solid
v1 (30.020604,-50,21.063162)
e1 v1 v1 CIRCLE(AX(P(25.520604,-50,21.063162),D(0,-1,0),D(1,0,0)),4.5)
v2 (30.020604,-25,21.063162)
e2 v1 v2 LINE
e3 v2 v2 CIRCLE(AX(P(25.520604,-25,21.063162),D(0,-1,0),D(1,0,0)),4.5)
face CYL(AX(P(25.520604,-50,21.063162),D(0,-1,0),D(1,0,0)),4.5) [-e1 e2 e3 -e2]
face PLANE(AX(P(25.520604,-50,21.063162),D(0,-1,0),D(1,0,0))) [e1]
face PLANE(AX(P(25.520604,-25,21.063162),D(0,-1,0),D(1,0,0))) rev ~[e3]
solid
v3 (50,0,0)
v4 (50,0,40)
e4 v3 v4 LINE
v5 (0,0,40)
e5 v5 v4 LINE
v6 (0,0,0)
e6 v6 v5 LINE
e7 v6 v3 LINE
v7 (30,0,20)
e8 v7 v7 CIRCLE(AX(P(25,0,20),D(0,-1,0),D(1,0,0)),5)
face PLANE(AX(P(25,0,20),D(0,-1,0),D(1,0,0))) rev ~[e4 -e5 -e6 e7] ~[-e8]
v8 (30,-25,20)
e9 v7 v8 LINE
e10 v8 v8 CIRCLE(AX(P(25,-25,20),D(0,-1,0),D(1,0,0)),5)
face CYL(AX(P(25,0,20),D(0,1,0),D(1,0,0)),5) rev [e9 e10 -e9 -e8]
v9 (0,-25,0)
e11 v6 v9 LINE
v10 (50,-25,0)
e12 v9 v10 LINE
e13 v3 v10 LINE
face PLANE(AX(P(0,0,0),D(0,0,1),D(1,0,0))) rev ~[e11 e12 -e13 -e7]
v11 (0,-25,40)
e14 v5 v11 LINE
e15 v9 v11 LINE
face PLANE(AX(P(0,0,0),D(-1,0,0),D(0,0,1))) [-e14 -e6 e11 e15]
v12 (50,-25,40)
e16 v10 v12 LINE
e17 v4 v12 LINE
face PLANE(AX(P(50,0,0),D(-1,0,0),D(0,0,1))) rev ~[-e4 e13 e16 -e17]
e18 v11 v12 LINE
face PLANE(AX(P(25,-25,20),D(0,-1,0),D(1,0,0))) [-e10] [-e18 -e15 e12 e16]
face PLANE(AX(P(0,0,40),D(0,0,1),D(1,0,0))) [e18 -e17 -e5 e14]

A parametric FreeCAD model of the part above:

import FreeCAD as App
import Part
import Sketcher

V = App.Vector


def add_polygon(sketch, points):
    """Adds a closed chain of lines whose ends are joined by coincident constraints."""
    first, n = sketch.GeometryCount, len(points)
    for a, b in zip(points, points[1:] + points[:1]):
        sketch.addGeometry(Part.LineSegment(App.Vector(*a, 0), App.Vector(*b, 0)), False)
    for i in range(n):
        sketch.addConstraint(Sketcher.Constraint("Coincident", first + i, 2, first + (i + 1) % n, 1))

doc = App.newDocument("Part")
params = doc.addObject("Spreadsheet::Sheet", "Params")
for row, (alias, value) in enumerate([
    ("sketch1_diameter", "10 mm"),
    ("sketch1_width", "50 mm"),
    ("sketch1_height", "40 mm"),
    ("pad1_length", "25 mm"),
    ("sketch2_diameter", "9 mm"),
    ("pad2_length", "25 mm"),
], start=1):
    params.set(f"A{row}", alias)
    params.set(f"B{row}", "=" + value)
    params.setAlias(f"B{row}", alias)

body = doc.addObject("PartDesign::Body", "Body")

# Sketch on XZ plane
sketch1 = body.newObject("Sketcher::SketchObject", "Sketch")
sketch1.AttachmentSupport = (doc.getObject("XZ_Plane"), [""])
sketch1.MapMode = "FlatFace"
add_polygon(sketch1, [(0, 40), (0, 0), (50, 0), (50, 40)])  # lines 0-3
sketch1.addGeometry(Part.Circle(V(25, 20, 0), V(0, 0, 1), 5), False)  # 4
sketch1.addConstraint(Sketcher.Constraint("Vertical", 0))
sketch1.addConstraint(Sketcher.Constraint("Horizontal", 1))
sketch1.addConstraint(Sketcher.Constraint("Vertical", 2))
sketch1.addConstraint(Sketcher.Constraint("Horizontal", 3))
sketch1.addConstraint(Sketcher.Constraint("Coincident", 0, 2, -1, 1))
sketch1.addConstraint(Sketcher.Constraint("Diameter", 4, 10.0))
sketch1.addConstraint(Sketcher.Constraint("DistanceX", 1, 1, 1, 2, 50.0))
sketch1.addConstraint(Sketcher.Constraint("DistanceY", 0, 2, 0, 1, 40.0))
sketch1.addConstraint(Sketcher.Constraint("DistanceX", -1, 1, 4, 3, 25.0))
sketch1.addConstraint(Sketcher.Constraint("DistanceY", -1, 1, 4, 3, 20.0))
sketch1.setExpression("Constraints[9]", "Params.sketch1_diameter")
sketch1.setExpression("Constraints[10]", "Params.sketch1_width")
sketch1.setExpression("Constraints[11]", "Params.sketch1_height")
pad1 = body.newObject("PartDesign::Pad", "Pad")
pad1.Profile = sketch1
pad1.setExpression("Length", "Params.pad1_length")
body2 = doc.addObject("PartDesign::Body", "Body001")

# Sketch on XZ plane
sketch2 = body2.newObject("Sketcher::SketchObject", "Sketch001")
sketch2.AttachmentSupport = (doc.getObject("XZ_Plane001"), [""])
sketch2.MapMode = "FlatFace"
sketch2.AttachmentOffset = App.Placement(V(0, 0, 50), App.Rotation())
sketch2.addGeometry(Part.Circle(V(25.5, 21.1, 0), V(0, 0, 1), 4.5), False)
sketch2.addConstraint(Sketcher.Constraint("Diameter", 0, 9.0))
sketch2.addConstraint(Sketcher.Constraint("DistanceX", -1, 1, 0, 3, 25.520604))
sketch2.addConstraint(Sketcher.Constraint("DistanceY", -1, 1, 0, 3, 21.063162))
sketch2.setExpression("Constraints[0]", "Params.sketch2_diameter")
pad2 = body2.newObject("PartDesign::Pad", "Pad001")
pad2.Profile = sketch2
pad2.setExpression("Length", "Params.pad2_length")
pad2.Reversed = True

doc.recompute()
